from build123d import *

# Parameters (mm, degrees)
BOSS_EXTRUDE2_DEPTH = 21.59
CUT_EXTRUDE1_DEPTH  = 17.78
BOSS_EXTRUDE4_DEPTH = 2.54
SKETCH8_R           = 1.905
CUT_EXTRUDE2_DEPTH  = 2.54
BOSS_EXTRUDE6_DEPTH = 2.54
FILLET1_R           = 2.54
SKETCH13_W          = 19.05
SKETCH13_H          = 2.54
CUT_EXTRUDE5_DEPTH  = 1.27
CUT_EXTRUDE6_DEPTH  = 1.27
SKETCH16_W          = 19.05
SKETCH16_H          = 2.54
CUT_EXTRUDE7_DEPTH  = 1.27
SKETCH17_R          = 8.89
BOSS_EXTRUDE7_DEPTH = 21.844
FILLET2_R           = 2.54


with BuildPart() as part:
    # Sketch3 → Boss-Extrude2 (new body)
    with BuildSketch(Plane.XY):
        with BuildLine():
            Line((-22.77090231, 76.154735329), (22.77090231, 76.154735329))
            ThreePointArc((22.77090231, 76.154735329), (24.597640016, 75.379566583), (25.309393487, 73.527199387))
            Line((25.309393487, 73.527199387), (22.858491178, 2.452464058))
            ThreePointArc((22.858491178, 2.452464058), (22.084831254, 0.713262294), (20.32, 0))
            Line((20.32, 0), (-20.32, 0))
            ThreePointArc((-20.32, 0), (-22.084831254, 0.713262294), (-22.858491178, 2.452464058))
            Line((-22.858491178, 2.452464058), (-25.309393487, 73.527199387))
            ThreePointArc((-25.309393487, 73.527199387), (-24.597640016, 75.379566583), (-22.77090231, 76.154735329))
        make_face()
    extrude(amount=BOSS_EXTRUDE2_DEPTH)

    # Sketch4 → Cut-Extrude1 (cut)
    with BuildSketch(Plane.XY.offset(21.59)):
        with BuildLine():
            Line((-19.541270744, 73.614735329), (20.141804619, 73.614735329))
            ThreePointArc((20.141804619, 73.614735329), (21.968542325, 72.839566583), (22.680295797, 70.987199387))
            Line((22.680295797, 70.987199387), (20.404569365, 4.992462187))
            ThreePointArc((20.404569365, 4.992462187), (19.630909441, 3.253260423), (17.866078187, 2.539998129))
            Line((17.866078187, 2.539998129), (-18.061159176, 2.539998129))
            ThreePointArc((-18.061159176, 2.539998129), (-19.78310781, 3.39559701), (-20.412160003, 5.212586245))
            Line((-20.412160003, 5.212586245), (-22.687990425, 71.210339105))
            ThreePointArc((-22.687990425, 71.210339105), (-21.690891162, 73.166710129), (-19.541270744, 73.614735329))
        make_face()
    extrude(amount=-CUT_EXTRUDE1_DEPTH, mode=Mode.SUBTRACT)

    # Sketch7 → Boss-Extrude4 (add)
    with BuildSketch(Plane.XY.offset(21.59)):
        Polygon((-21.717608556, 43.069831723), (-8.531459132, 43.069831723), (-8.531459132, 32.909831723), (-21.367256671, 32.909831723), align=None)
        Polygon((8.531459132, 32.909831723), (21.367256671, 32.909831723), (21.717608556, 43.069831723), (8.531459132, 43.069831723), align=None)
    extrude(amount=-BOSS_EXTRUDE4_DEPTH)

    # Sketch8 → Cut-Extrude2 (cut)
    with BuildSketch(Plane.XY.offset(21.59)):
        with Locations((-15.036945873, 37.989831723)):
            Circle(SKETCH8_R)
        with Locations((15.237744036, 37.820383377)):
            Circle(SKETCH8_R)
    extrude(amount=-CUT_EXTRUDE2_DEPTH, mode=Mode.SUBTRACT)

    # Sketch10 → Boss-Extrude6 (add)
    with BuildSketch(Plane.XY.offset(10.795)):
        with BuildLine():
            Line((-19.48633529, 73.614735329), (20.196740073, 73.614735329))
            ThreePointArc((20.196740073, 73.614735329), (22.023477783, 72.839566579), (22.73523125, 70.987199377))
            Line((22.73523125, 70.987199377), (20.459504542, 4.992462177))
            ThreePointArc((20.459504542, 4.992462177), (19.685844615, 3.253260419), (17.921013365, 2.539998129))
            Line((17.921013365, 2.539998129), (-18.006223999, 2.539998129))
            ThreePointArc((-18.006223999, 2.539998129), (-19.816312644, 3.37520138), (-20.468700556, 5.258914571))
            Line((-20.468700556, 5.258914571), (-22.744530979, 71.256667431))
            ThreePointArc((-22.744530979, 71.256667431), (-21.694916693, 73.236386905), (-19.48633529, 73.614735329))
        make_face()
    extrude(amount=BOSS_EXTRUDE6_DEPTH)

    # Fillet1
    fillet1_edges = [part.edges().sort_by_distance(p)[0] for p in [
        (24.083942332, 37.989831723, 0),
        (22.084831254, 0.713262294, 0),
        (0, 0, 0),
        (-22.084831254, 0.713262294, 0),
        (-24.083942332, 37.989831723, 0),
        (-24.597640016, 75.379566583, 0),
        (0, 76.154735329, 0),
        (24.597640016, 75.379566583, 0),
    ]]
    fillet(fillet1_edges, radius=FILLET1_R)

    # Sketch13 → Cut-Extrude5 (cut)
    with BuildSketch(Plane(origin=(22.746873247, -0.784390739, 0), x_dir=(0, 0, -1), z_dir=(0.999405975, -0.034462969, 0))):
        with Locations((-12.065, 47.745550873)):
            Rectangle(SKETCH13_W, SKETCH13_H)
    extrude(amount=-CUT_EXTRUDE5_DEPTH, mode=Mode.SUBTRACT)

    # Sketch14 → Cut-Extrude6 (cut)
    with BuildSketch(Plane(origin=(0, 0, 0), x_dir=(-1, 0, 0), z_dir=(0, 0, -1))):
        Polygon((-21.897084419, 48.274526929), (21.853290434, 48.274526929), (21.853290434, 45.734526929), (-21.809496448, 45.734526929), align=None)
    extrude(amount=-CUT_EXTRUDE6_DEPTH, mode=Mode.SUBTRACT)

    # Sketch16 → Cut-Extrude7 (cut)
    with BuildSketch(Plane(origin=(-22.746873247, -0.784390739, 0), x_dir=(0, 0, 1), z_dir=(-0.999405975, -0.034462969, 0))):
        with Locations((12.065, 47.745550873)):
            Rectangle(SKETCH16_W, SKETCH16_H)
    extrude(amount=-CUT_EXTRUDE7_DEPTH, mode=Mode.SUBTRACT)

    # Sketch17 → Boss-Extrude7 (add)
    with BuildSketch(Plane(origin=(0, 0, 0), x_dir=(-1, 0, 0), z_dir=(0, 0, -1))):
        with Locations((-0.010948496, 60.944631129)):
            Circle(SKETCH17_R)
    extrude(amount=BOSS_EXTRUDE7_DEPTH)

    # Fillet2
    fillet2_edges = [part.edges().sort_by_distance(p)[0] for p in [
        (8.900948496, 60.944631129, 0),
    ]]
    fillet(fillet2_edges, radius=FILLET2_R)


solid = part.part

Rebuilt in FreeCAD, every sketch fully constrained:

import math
import FreeCAD as App
import Part
import Sketcher
from FreeCAD import Vector
Q = App.Units.Quantity


def edges_at(feature, points):
    """Names of the edges that pass closest to the given points."""
    edges = feature.Shape.Edges
    near = lambda p: min(range(len(edges)), key=lambda i: edges[i].distToShape(Part.Vertex(*p))[0])
    return sorted({f"Edge{near(p) + 1}" for p in points})


def add_polygon(sketch, points):
    """Adds a closed chain of lines whose ends are joined by coincident constraints."""
    first, n = sketch.GeometryCount, len(points)
    for a, b in zip(points, points[1:] + points[:1]):
        sketch.addGeometry(Part.LineSegment(App.Vector(*a, 0), App.Vector(*b, 0)), False)
    for i in range(n):
        sketch.addConstraint(Sketcher.Constraint("Coincident", first + i, 2, first + (i + 1) % n, 1))

doc = App.newDocument("Part")
body = doc.addObject("PartDesign::Body", "Body")

# Sketch on XY plane
sketch1 = body.newObject("Sketcher::SketchObject", "Sketch")
sketch1.AttachmentSupport = (doc.getObject("XY_Plane"), [""])
sketch1.MapMode = "FlatFace"
sketch1.addGeometry([
    Part.LineSegment(Vector(22.8, 76.2, 0), Vector(-22.8, 76.2, 0)),  # 0
    Part.ArcOfCircle(Part.Circle(Vector(-22.8, 73.6, 0), Vector(0, 0, 1), 2.5), math.radians(90), math.radians(182)),  # 1
    Part.LineSegment(Vector(-25.3, 73.5, 0), Vector(-22.9, 2.5, 0)),  # 2
    Part.ArcOfCircle(Part.Circle(Vector(-20.3, 2.5, 0), Vector(0, 0, 1), 2.5), math.radians(-178), math.radians(-90)),  # 3
    Part.LineSegment(Vector(-20.3, 0, 0), Vector(20.3, 0, 0)),  # 4
    Part.ArcOfCircle(Part.Circle(Vector(20.3, 2.5, 0), Vector(0, 0, 1), 2.5), math.radians(-90), math.radians(-2)),  # 5
    Part.LineSegment(Vector(22.9, 2.5, 0), Vector(25.3, 73.5, 0)),  # 6
    Part.ArcOfCircle(Part.Circle(Vector(22.8, 73.6, 0), Vector(0, 0, 1), 2.5), math.radians(-2), math.radians(90)),  # 7
], False)
sketch1.addConstraint([
    Sketcher.Constraint("Tangent", 0, 2, 1, 1),
    Sketcher.Constraint("Tangent", 1, 2, 2, 1),
    Sketcher.Constraint("Tangent", 2, 2, 3, 1),
    Sketcher.Constraint("Tangent", 3, 2, 4, 1),
    Sketcher.Constraint("Tangent", 4, 2, 5, 1),
    Sketcher.Constraint("Tangent", 5, 2, 6, 1),
    Sketcher.Constraint("Tangent", 6, 2, 7, 1),
    Sketcher.Constraint("Tangent", 7, 2, 0, 1),
    Sketcher.Constraint("Horizontal", 0),
    Sketcher.Constraint("Horizontal", 4),
    Sketcher.Constraint("Equal", 1, 3),
    Sketcher.Constraint("Equal", 3, 5),
    Sketcher.Constraint("Equal", 5, 7),
    Sketcher.Constraint("Symmetric", 3, 2, 4, 2, -1, 1),
    Sketcher.Constraint("Horizontal", 2, 2, 5, 2),
    Sketcher.Constraint("Radius", 1, Q("0.1 in")),
    Sketcher.Constraint("DistanceX", 4, 1, 4, 2, Q("1.6 in")),
    Sketcher.Constraint("DistanceY", -1, 1, 1, 2, Q("73.527199 mm")),
    Sketcher.Constraint("Distance", 2, Q("71.116981 mm")),
])
pad1 = body.newObject("PartDesign::Pad", "Pad")
pad1.Profile = sketch1
pad1.Length = Q("0.85 in")

# Sketch on XY plane
sketch2 = body.newObject("Sketcher::SketchObject", "Sketch001")
sketch2.AttachmentSupport = (doc.getObject("XY_Plane"), [""])
sketch2.MapMode = "FlatFace"
sketch2.AttachmentOffset = App.Placement(Vector(0, 0, 0.85 * 25.4), App.Rotation())
sketch2.addGeometry([
    Part.LineSegment(Vector(20.1, 73.6, 0), Vector(-19.5, 73.6, 0)),  # 0
    Part.ArcOfCircle(Part.Circle(Vector(-20.1, 71.1, 0), Vector(0, 0, 1), 2.5), math.radians(76), math.radians(179)),  # 1
    Part.LineSegment(Vector(-22.7, 71.2, 0), Vector(-20.4, 5.2, 0)),  # 2
    Part.ArcOfCircle(Part.Circle(Vector(-17.9, 5.1, 0), Vector(0, 0, 1), 2.5), math.radians(177), math.radians(266)),  # 3
    Part.LineSegment(Vector(-18.1, 2.5, 0), Vector(17.9, 2.5, 0)),  # 4
    Part.ArcOfCircle(Part.Circle(Vector(17.9, 5.1, 0), Vector(0, 0, 1), 2.5), math.radians(-90), math.radians(-2)),  # 5
    Part.LineSegment(Vector(20.4, 5, 0), Vector(22.7, 71, 0)),  # 6
    Part.ArcOfCircle(Part.Circle(Vector(20.1, 71.1, 0), Vector(0, 0, 1), 2.5), math.radians(-2), math.radians(90)),  # 7
], False)
sketch2.addConstraint([
    Sketcher.Constraint("Coincident", 0, 2, 1, 1),
    Sketcher.Constraint("Coincident", 1, 2, 2, 1),
    Sketcher.Constraint("Coincident", 2, 2, 3, 1),
    Sketcher.Constraint("Coincident", 3, 2, 4, 1),
    Sketcher.Constraint("Tangent", 4, 2, 5, 1),
    Sketcher.Constraint("Tangent", 5, 2, 6, 1),
    Sketcher.Constraint("Tangent", 6, 2, 7, 1),
    Sketcher.Constraint("Tangent", 7, 2, 0, 1),
    Sketcher.Constraint("Horizontal", 0),
    Sketcher.Constraint("Horizontal", 4),
    Sketcher.Constraint("Equal", 1, 3),
    Sketcher.Constraint("Equal", 3, 5),
    Sketcher.Constraint("Equal", 5, 7),
    Sketcher.Constraint("Radius", 1, Q("0.1 in")),
    Sketcher.Constraint("DistanceY", -1, 1, 5, 3, Q("0.1999999 in")),
    Sketcher.Constraint("DistanceY", 2, 2, 1, 3, Q("2.5959001 in")),
    Sketcher.Constraint("DistanceY", -1, 1, 6, 2, Q("70.987199 mm")),
    Sketcher.Constraint("DistanceY", 3, 3, 1, 2, Q("66.1371 mm")),
    Sketcher.Constraint("DistanceX", 2, 2, 3, 2, Q("2.351001 mm")),
    Sketcher.Constraint("Distance", 2, Q("66.03698 mm")),
    Sketcher.Constraint("DistanceX", 0, 2, 0, 1, Q("39.683075 mm")),
    Sketcher.Constraint("DistanceX", 4, 1, 4, 2, Q("35.927237 mm")),
    Sketcher.Constraint("DistanceX", -1, 1, 5, 3, Q("17.866078 mm")),
    Sketcher.Constraint("DistanceX", 0, 2, -1, 1, Q("19.541271 mm")),
])
pocket1 = body.newObject("PartDesign::Pocket", "Pocket")
pocket1.Profile = sketch2
pocket1.Length = Q("0.7 in")

# Sketch on XY plane
sketch3 = body.newObject("Sketcher::SketchObject", "Sketch002")
sketch3.AttachmentSupport = (doc.getObject("XY_Plane"), [""])
sketch3.MapMode = "FlatFace"
sketch3.AttachmentOffset = App.Placement(Vector(0, 0, 0.85 * 25.4), App.Rotation())
add_polygon(sketch3, [(-9, 43), (-22, 43), (-21, 33), (-9, 33)])  # lines 0-3
add_polygon(sketch3, [(9, 33), (21, 33), (22, 43), (9, 43)])  # lines 4-7
sketch3.addConstraint([
    Sketcher.Constraint("Horizontal", 0),
    Sketcher.Constraint("Horizontal", 2),
    Sketcher.Constraint("Vertical", 3),
    Sketcher.Constraint("Horizontal", 4),
    Sketcher.Constraint("Horizontal", 6),
    Sketcher.Constraint("Vertical", 7),
    Sketcher.Constraint("Symmetric", 1, 2, 4, 2, -2),
    Sketcher.Constraint("Symmetric", 0, 2, 5, 2, -2),
    Sketcher.Constraint("Equal", 2, 4),
    Sketcher.Constraint("DistanceY", 3, 1, 3, 2, Q("0.4 in")),
    Sketcher.Constraint("DistanceX", 0, 2, 0, 1, Q("13.186149 mm")),
    Sketcher.Constraint("Distance", 1, Q("10.166039 mm")),
    Sketcher.Constraint("DistanceX", 0, 2, -1, 1, Q("21.717609 mm")),
    Sketcher.Constraint("DistanceY", -1, 1, 0, 2, Q("43.069832 mm")),
])
pad2 = body.newObject("PartDesign::Pad", "Pad001")
pad2.Profile = sketch3
pad2.Length = Q("0.1 in")
pad2.Reversed = True

# Sketch on XY plane
sketch4 = body.newObject("Sketcher::SketchObject", "Sketch003")
sketch4.AttachmentSupport = (doc.getObject("XY_Plane"), [""])
sketch4.MapMode = "FlatFace"
sketch4.AttachmentOffset = App.Placement(Vector(0, 0, 0.85 * 25.4), App.Rotation())
sketch4.addGeometry([
    Part.Circle(Vector(-15, 38, 0), Vector(0, 0, 1), 1.9),
    Part.Circle(Vector(15.2, 37.8, 0), Vector(0, 0, 1), 1.9),
], False)
sketch4.addConstraint([
    Sketcher.Constraint("Equal", 0, 1),
    Sketcher.Constraint("Diameter", 0, Q("0.15 in")),
    Sketcher.Constraint("DistanceY", -1, 1, 0, 3, Q("37.989832 mm")),
    Sketcher.Constraint("DistanceX", 0, 3, 1, 3, Q("30.27469 mm")),
    Sketcher.Constraint("DistanceY", 1, 3, 0, 3, Q("0.169448 mm")),
    Sketcher.Constraint("DistanceX", 0, 3, -1, 1, Q("15.036946 mm")),
])
pocket2 = body.newObject("PartDesign::Pocket", "Pocket001")
pocket2.Profile = sketch4
pocket2.Length = Q("0.1 in")

# Sketch on XY plane
sketch5 = body.newObject("Sketcher::SketchObject", "Sketch004")
sketch5.AttachmentSupport = (doc.getObject("XY_Plane"), [""])
sketch5.MapMode = "FlatFace"
sketch5.AttachmentOffset = App.Placement(Vector(0, 0, 0.425 * 25.4), App.Rotation())
sketch5.addGeometry([
    Part.LineSegment(Vector(20.2, 73.6, 0), Vector(-19.5, 73.6, 0)),  # 0
    Part.ArcOfCircle(Part.Circle(Vector(-20.2, 71.2, 0), Vector(0, 0, 1), 2.5), math.radians(74), math.radians(178)),  # 1
    Part.LineSegment(Vector(-22.7, 71.3, 0), Vector(-20.5, 5.3, 0)),  # 2
    Part.ArcOfCircle(Part.Circle(Vector(-17.9, 5.1, 0), Vector(0, 0, 1), 2.5), math.radians(176), math.radians(268)),  # 3
    Part.LineSegment(Vector(-18, 2.5, 0), Vector(17.9, 2.5, 0)),  # 4
    Part.ArcOfCircle(Part.Circle(Vector(17.9, 5.1, 0), Vector(0, 0, 1), 2.5), math.radians(-90), math.radians(-2)),  # 5
    Part.LineSegment(Vector(20.5, 5, 0), Vector(22.7, 71, 0)),  # 6
    Part.ArcOfCircle(Part.Circle(Vector(20.2, 71.1, 0), Vector(0, 0, 1), 2.5), math.radians(-2), math.radians(90)),  # 7
], False)
sketch5.addConstraint([
    Sketcher.Constraint("Coincident", 0, 2, 1, 1),
    Sketcher.Constraint("Coincident", 1, 2, 2, 1),
    Sketcher.Constraint("Coincident", 2, 2, 3, 1),
    Sketcher.Constraint("Coincident", 3, 2, 4, 1),
    Sketcher.Constraint("Tangent", 4, 2, 5, 1),
    Sketcher.Constraint("Tangent", 5, 2, 6, 1),
    Sketcher.Constraint("Tangent", 6, 2, 7, 1),
    Sketcher.Constraint("Tangent", 7, 2, 0, 1),
    Sketcher.Constraint("Horizontal", 0),
    Sketcher.Constraint("Horizontal", 4),
    Sketcher.Constraint("Equal", 1, 5),
    Sketcher.Constraint("Equal", 5, 7),
    Sketcher.Constraint("Radius", 1, Q("0.1 in")),
    Sketcher.Constraint("DistanceY", -1, 1, 5, 3, Q("0.1999999 in")),
    Sketcher.Constraint("Radius", 3, Q("2.544269 mm")),
    Sketcher.Constraint("DistanceX", 2, 2, -1, 1, Q("20.468701 mm")),
    Sketcher.Constraint("DistanceY", -1, 1, 6, 2, Q("70.987199 mm")),
    Sketcher.Constraint("DistanceY", 3, 3, 1, 3, Q("66.095599 mm")),
    Sketcher.Constraint("Distance", 2, Q("66.03698 mm")),
    Sketcher.Constraint("DistanceX", 0, 2, 0, 1, Q("39.683075 mm")),
    Sketcher.Constraint("DistanceX", 4, 1, 4, 2, Q("35.927237 mm")),
    Sketcher.Constraint("DistanceY", -1, 1, 1, 3, Q("71.178739 mm")),
    Sketcher.Constraint("DistanceX", 3, 3, -1, 1, Q("17.930511 mm")),
    Sketcher.Constraint("DistanceX", -1, 1, 7, 3, Q("20.19674 mm")),
])
pad3 = body.newObject("PartDesign::Pad", "Pad002")
pad3.Profile = sketch5
pad3.Length = Q("0.1 in")
doc.recompute()

fillet = body.newObject("PartDesign::Fillet", "Fillet")
fillet.Base = (pad3, edges_at(pad3, [
    (24.084, 37.99, 0),
    (22.085, 0.713, 0),
    (0, 0, 0),
    (-22.085, 0.713, 0),
    (-24.084, 37.99, 0),
    (-24.598, 75.38, 0),
    (0, 76.155, 0),
    (24.598, 75.38, 0),
]))
fillet.Radius = Q("0.1 in")

# Sketch on an angled plane
sketch6 = body.newObject("Sketcher::SketchObject", "Sketch005")
sketch6.Placement = App.Placement(Vector(22.746873, -0.784391, 0), App.Rotation(Vector(0, 0, -1), Vector(0.034462969, 0.999405975, 0), Vector(0.999405975, -0.034462969, 0), "ZXY"))
add_polygon(sketch6, [(-21.6, 49), (-21.6, 46.5), (-2.5, 46.5), (-2.5, 49)])  # lines 0-3
sketch6.addConstraint([
    Sketcher.Constraint("Vertical", 0),
    Sketcher.Constraint("Horizontal", 1),
    Sketcher.Constraint("Vertical", 2),
    Sketcher.Constraint("Horizontal", 3),
    Sketcher.Constraint("DistanceY", 0, 2, 0, 1, Q("0.1 in")),
    Sketcher.Constraint("DistanceX", 1, 1, 1, 2, Q("0.75 in")),
    Sketcher.Constraint("DistanceX", 1, 2, -1, 1, Q("0.1 in")),
    Sketcher.Constraint("DistanceY", -1, 1, 0, 2, Q("46.475551 mm")),
])
pocket3 = body.newObject("PartDesign::Pocket", "Pocket002")
pocket3.Profile = sketch6
pocket3.Length = Q("0.05 in")

# Sketch on XY plane
sketch7 = body.newObject("Sketcher::SketchObject", "Sketch006")
sketch7.AttachmentSupport = (doc.getObject("XY_Plane"), [""])
sketch7.MapMode = "FlatFace"
add_polygon(sketch7, [(-21.9, 48.3), (21.9, 48.3), (21.8, 45.7), (-21.9, 45.7)])  # lines 0-3
sketch7.addConstraint([
    Sketcher.Constraint("Horizontal", 0),
    Sketcher.Constraint("Horizontal", 2),
    Sketcher.Constraint("Vertical", 3),
    Sketcher.Constraint("DistanceY", 3, 1, 3, 2, Q("0.1 in")),
    Sketcher.Constraint("Distance", 1, Q("2.54151 mm")),
    Sketcher.Constraint("DistanceX", 0, 1, 0, 2, Q("43.750375 mm")),
    Sketcher.Constraint("DistanceX", 2, 2, -1, 1, Q("21.85329 mm")),
    Sketcher.Constraint("DistanceY", -1, 1, 0, 2, Q("48.274527 mm")),
])
pocket4 = body.newObject("PartDesign::Pocket", "Pocket003")
pocket4.Profile = sketch7
pocket4.Length = Q("0.05 in")
pocket4.Reversed = True

# Sketch on an angled plane
sketch8 = body.newObject("Sketcher::SketchObject", "Sketch007")
sketch8.Placement = App.Placement(Vector(-22.746873, -0.784391, 0), App.Rotation(Vector(0, 0, 1), Vector(-0.034462969, 0.999405975, 0), Vector(-0.999405975, -0.034462969, 0), "ZXY"))
add_polygon(sketch8, [(2.5, 49), (2.5, 46.5), (21.6, 46.5), (21.6, 49)])  # lines 0-3
sketch8.addConstraint([
    Sketcher.Constraint("Vertical", 0),
    Sketcher.Constraint("Horizontal", 1),
    Sketcher.Constraint("Vertical", 2),
    Sketcher.Constraint("Horizontal", 3),
    Sketcher.Constraint("DistanceY", 0, 2, 0, 1, Q("0.1 in")),
    Sketcher.Constraint("DistanceX", 1, 1, 1, 2, Q("0.75 in")),
    Sketcher.Constraint("DistanceX", -1, 1, 0, 2, Q("0.1 in")),
    Sketcher.Constraint("DistanceY", -1, 1, 0, 2, Q("46.475551 mm")),
])
pocket5 = body.newObject("PartDesign::Pocket", "Pocket004")
pocket5.Profile = sketch8
pocket5.Length = Q("0.05 in")

# Sketch on XY plane
sketch9 = body.newObject("Sketcher::SketchObject", "Sketch008")
sketch9.AttachmentSupport = (doc.getObject("XY_Plane"), [""])
sketch9.MapMode = "FlatFace"
sketch9.addGeometry(Part.Circle(Vector(0, 61, 0), Vector(0, 0, 1), 9), False)
sketch9.addConstraint([
    Sketcher.Constraint("Diameter", 0, Q("0.7 in")),
    Sketcher.Constraint("DistanceX", -1, 1, 0, 3, Q("0.010948 mm")),
    Sketcher.Constraint("DistanceY", -1, 1, 0, 3, Q("60.944631 mm")),
])
pad4 = body.newObject("PartDesign::Pad", "Pad003")
pad4.Profile = sketch9
pad4.Length = Q("0.86 in")
pad4.Reversed = True
doc.recompute()

fillet2 = body.newObject("PartDesign::Fillet", "Fillet001")
fillet2.Base = (pad4, edges_at(pad4, [(8.901, 60.945, 0)]))
fillet2.Radius = Q("0.1 in")

doc.recompute()
